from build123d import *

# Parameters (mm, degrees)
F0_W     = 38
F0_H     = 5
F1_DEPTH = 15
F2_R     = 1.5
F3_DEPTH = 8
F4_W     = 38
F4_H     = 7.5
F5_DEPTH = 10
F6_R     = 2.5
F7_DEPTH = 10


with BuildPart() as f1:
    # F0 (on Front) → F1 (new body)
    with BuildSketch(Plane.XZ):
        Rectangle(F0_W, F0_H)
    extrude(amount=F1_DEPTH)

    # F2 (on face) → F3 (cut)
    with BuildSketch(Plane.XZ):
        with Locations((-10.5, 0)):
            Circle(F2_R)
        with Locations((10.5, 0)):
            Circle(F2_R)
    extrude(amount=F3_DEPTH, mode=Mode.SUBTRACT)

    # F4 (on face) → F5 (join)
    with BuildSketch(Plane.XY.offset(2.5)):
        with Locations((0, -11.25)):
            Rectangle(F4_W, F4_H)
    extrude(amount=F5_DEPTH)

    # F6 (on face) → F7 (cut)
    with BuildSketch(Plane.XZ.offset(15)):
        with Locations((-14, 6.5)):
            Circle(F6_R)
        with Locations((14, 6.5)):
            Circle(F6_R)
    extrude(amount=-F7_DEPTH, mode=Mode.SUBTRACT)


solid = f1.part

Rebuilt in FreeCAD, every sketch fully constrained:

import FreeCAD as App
import Part
import Sketcher

V = App.Vector

doc = App.newDocument("Part")
params = doc.addObject("Spreadsheet::Sheet", "Params")
for row, (alias, value) in enumerate([
    ("sketch1_width", "38 mm"),
    ("sketch1_height", "5 mm"),
    ("pad1_length", "15 mm"),
    ("sketch2_diameter", "3 mm"),
    ("pocket1_length", "8 mm"),
    ("sketch3_width", "38 mm"),
    ("sketch3_height", "7.5 mm"),
    ("pad2_length", "10 mm"),
    ("sketch4_diameter", "5 mm"),
    ("pocket2_length", "10 mm"),
], start=1):
    params.set(f"A{row}", alias)
    params.set(f"B{row}", "=" + value)
    params.setAlias(f"B{row}", alias)

body = doc.addObject("PartDesign::Body", "Body")

# Sketch on XZ plane
sketch1 = body.newObject("Sketcher::SketchObject", "Sketch")
sketch1.AttachmentSupport = (doc.getObject("XZ_Plane"), [""])
sketch1.MapMode = "FlatFace"
sketch1.addGeometry([
    Part.LineSegment(V(-19, 2, 0), V(-19, -2, 0)),
    Part.LineSegment(V(-19, -2, 0), V(19, -2, 0)),
    Part.LineSegment(V(19, -2, 0), V(19, 2, 0)),
    Part.LineSegment(V(19, 2, 0), V(-19, 2, 0)),
], False)
sketch1.addConstraint([
    Sketcher.Constraint("Coincident", 0, 2, 1, 1),
    Sketcher.Constraint("Coincident", 1, 2, 2, 1),
    Sketcher.Constraint("Coincident", 2, 2, 3, 1),
    Sketcher.Constraint("Coincident", 3, 2, 0, 1),
    Sketcher.Constraint("Vertical", 0),
    Sketcher.Constraint("Horizontal", 1),
    Sketcher.Constraint("Vertical", 2),
    Sketcher.Constraint("Horizontal", 3),
    Sketcher.Constraint("Symmetric", 0, 2, 2, 2, -1, 1),
    Sketcher.Constraint("DistanceX", 1, 1, 1, 2, 38.0),
    Sketcher.Constraint("DistanceY", 0, 2, 0, 1, 5.0),
])
sketch1.setExpression("Constraints[9]", "Params.sketch1_width")
sketch1.setExpression("Constraints[10]", "Params.sketch1_height")
pad1 = body.newObject("PartDesign::Pad", "Pad")
pad1.Profile = sketch1
pad1.setExpression("Length", "Params.pad1_length")

# Sketch on XZ plane
sketch2 = body.newObject("Sketcher::SketchObject", "Sketch001")
sketch2.AttachmentSupport = (doc.getObject("XZ_Plane"), [""])
sketch2.MapMode = "FlatFace"
sketch2.addGeometry([
    Part.Circle(V(-10.5, 0, 0), V(0, 0, 1), 1.5),
    Part.Circle(V(10.5, 0, 0), V(0, 0, 1), 1.5),
], False)
sketch2.addConstraint([
    Sketcher.Constraint("Equal", 0, 1),
    Sketcher.Constraint("Symmetric", 0, 3, 1, 3, -1, 1),
    Sketcher.Constraint("PointOnObject", 0, 3, -1),
    Sketcher.Constraint("Diameter", 0, 3.0),
    Sketcher.Constraint("DistanceX", 0, 3, 1, 3, 21.0),
])
sketch2.setExpression("Constraints[3]", "Params.sketch2_diameter")
pocket1 = body.newObject("PartDesign::Pocket", "Pocket")
pocket1.Profile = sketch2
pocket1.setExpression("Length", "Params.pocket1_length")
pocket1.Reversed = True

# Sketch on XY plane
sketch3 = body.newObject("Sketcher::SketchObject", "Sketch002")
sketch3.AttachmentSupport = (doc.getObject("XY_Plane"), [""])
sketch3.MapMode = "FlatFace"
sketch3.AttachmentOffset = App.Placement(V(0, 0, 2.5), App.Rotation())
sketch3.addGeometry([
    Part.LineSegment(V(-19, -8, 0), V(-19, -15, 0)),
    Part.LineSegment(V(-19, -15, 0), V(19, -15, 0)),
    Part.LineSegment(V(19, -15, 0), V(19, -8, 0)),
    Part.LineSegment(V(19, -8, 0), V(-19, -8, 0)),
], False)
sketch3.addConstraint([
    Sketcher.Constraint("Coincident", 0, 2, 1, 1),
    Sketcher.Constraint("Coincident", 1, 2, 2, 1),
    Sketcher.Constraint("Coincident", 2, 2, 3, 1),
    Sketcher.Constraint("Coincident", 3, 2, 0, 1),
    Sketcher.Constraint("Vertical", 0),
    Sketcher.Constraint("Horizontal", 1),
    Sketcher.Constraint("Vertical", 2),
    Sketcher.Constraint("Horizontal", 3),
    Sketcher.Constraint("DistanceX", 1, 1, 1, 2, 38.0),
    Sketcher.Constraint("DistanceY", 0, 2, 0, 1, 7.5),
    Sketcher.Constraint("DistanceX", 0, 2, -1, 1, 19.0),
    Sketcher.Constraint("DistanceY", 0, 2, -1, 1, 15.0),
])
sketch3.setExpression("Constraints[8]", "Params.sketch3_width")
sketch3.setExpression("Constraints[9]", "Params.sketch3_height")
pad2 = body.newObject("PartDesign::Pad", "Pad001")
pad2.Profile = sketch3
pad2.setExpression("Length", "Params.pad2_length")

# Sketch on XZ plane
sketch4 = body.newObject("Sketcher::SketchObject", "Sketch003")
sketch4.AttachmentSupport = (doc.getObject("XZ_Plane"), [""])
sketch4.MapMode = "FlatFace"
sketch4.AttachmentOffset = App.Placement(V(0, 0, 15), App.Rotation())
sketch4.addGeometry([
    Part.Circle(V(-14, 6.5, 0), V(0, 0, 1), 2.5),
    Part.Circle(V(14, 6.5, 0), V(0, 0, 1), 2.5),
], False)
sketch4.addConstraint([
    Sketcher.Constraint("Equal", 0, 1),
    Sketcher.Constraint("Symmetric", 0, 3, 1, 3, -2),
    Sketcher.Constraint("Diameter", 0, 5.0),
    Sketcher.Constraint("DistanceX", 0, 3, -1, 1, 14.0),
    Sketcher.Constraint("DistanceY", -1, 1, 0, 3, 6.5),
])
sketch4.setExpression("Constraints[2]", "Params.sketch4_diameter")
pocket2 = body.newObject("PartDesign::Pocket", "Pocket001")
pocket2.Profile = sketch4
pocket2.setExpression("Length", "Params.pocket2_length")

doc.recompute()
